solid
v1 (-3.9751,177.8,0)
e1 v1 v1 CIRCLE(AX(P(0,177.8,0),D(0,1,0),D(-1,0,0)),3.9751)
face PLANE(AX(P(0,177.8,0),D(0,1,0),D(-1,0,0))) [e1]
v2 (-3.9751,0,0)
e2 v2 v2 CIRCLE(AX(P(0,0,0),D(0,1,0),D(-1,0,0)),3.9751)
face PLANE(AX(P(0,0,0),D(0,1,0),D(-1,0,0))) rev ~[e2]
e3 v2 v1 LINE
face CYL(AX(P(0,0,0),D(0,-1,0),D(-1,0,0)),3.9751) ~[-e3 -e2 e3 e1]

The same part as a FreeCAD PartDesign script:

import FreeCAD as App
import Part
import Sketcher

V = App.Vector
Q = App.Units.Quantity

doc = App.newDocument("Part")
body = doc.addObject("PartDesign::Body", "Body")

sketch1 = body.newObject("Sketcher::SketchObject", "Sketch")
sketch1.AttachmentSupport = (doc.getObject("XZ_Plane"), [""])
sketch1.MapMode = "FlatFace"
sketch1.addGeometry(Part.Circle(V(0, 0, 0), V(0, 0, 1), 4), False)
sketch1.addConstraint([
    Sketcher.Constraint("Coincident", 0, 3, -1, 1),
    Sketcher.Constraint("Diameter", 0, Q("0.313 in")),
])
pad1 = body.newObject("PartDesign::Pad", "Pad")
pad1.Profile = sketch1
pad1.Length = Q("7 in")
pad1.Reversed = True

doc.recompute()
